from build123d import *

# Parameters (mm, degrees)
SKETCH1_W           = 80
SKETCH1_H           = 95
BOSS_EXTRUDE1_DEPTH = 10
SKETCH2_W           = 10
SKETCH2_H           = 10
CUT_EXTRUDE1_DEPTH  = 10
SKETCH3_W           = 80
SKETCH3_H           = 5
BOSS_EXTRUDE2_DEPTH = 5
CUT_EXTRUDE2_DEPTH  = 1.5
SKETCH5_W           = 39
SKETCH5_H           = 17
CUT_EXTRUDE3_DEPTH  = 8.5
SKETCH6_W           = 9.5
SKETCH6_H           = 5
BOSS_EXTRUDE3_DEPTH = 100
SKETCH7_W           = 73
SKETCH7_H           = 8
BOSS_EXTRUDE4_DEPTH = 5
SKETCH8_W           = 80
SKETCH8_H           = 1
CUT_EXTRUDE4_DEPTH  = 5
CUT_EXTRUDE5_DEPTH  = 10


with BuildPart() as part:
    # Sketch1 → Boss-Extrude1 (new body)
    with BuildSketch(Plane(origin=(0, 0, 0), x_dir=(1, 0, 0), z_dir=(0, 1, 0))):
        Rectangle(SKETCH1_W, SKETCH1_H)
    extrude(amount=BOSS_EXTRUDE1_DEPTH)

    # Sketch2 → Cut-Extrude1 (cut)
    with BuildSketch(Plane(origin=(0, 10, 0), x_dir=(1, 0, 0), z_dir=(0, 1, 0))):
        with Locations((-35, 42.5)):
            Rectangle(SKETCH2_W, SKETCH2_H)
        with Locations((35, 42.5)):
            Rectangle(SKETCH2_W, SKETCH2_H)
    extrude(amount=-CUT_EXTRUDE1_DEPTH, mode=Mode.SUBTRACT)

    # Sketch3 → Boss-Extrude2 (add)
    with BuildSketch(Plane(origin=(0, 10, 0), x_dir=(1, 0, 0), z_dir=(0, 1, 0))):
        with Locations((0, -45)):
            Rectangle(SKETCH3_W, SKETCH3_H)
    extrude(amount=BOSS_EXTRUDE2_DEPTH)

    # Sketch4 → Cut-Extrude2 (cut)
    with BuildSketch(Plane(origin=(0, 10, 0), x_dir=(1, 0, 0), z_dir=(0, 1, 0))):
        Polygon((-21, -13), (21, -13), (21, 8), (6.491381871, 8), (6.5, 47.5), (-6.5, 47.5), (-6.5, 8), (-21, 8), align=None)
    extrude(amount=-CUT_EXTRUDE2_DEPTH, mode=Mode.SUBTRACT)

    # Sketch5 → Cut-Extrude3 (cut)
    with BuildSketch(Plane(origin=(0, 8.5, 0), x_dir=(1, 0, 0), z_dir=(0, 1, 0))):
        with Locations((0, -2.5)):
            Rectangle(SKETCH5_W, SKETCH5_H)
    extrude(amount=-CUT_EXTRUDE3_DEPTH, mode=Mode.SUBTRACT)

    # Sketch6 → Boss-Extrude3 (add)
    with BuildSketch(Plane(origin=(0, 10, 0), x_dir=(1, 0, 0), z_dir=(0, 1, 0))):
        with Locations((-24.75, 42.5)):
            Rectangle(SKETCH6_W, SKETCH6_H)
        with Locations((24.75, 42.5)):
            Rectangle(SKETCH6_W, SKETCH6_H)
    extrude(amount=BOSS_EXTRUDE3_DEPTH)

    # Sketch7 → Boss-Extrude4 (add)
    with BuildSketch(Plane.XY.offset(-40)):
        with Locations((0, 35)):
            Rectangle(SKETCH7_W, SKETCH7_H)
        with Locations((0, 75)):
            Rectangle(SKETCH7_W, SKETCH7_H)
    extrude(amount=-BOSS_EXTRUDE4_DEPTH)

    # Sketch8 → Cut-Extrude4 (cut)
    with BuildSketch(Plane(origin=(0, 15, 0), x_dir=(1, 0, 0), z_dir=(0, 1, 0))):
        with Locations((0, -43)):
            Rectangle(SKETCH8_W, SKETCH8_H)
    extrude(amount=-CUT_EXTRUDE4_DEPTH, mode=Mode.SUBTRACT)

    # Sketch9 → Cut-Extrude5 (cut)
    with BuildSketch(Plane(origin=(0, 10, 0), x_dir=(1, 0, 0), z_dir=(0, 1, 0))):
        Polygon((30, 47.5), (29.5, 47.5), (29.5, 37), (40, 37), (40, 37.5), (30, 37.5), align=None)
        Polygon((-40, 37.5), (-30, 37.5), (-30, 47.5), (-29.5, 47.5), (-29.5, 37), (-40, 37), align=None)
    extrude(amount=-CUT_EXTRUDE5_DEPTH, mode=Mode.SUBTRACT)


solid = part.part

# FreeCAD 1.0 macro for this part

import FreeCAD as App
import Part
import Sketcher

V = App.Vector
Q = App.Units.Quantity

doc = App.newDocument("Part")
body = doc.addObject("PartDesign::Body", "Body")

# Sketch on XZ plane
sketch1 = body.newObject("Sketcher::SketchObject", "Sketch")
sketch1.AttachmentSupport = (doc.getObject("XZ_Plane"), [""])
sketch1.MapMode = "FlatFace"
sketch1.addGeometry(Part.LineSegment(V(-40, -47.5, 0), V(-40, 47.5, 0)), False)
sketch1.addGeometry(Part.LineSegment(V(-40, 47.5, 0), V(40, 47.5, 0)), False)
sketch1.addGeometry(Part.LineSegment(V(40, 47.5, 0), V(40, -47.5, 0)), False)
sketch1.addGeometry(Part.LineSegment(V(40, -47.5, 0), V(-40, -47.5, 0)), False)
sketch1.addConstraint(Sketcher.Constraint("Coincident", 0, 2, 1, 1))
sketch1.addConstraint(Sketcher.Constraint("Coincident", 1, 2, 2, 1))
sketch1.addConstraint(Sketcher.Constraint("Coincident", 2, 2, 3, 1))
sketch1.addConstraint(Sketcher.Constraint("Coincident", 3, 2, 0, 1))
sketch1.addConstraint(Sketcher.Constraint("Vertical", 0))
sketch1.addConstraint(Sketcher.Constraint("Horizontal", 1))
sketch1.addConstraint(Sketcher.Constraint("Vertical", 2))
sketch1.addConstraint(Sketcher.Constraint("Horizontal", 3))
sketch1.addConstraint(Sketcher.Constraint("Symmetric", 0, 2, 2, 2, -1, 1))
sketch1.addConstraint(Sketcher.Constraint("DistanceX", 1, 1, 1, 2, Q("80 mm")))
sketch1.addConstraint(Sketcher.Constraint("DistanceY", 0, 1, 0, 2, Q("95 mm")))
pad1 = body.newObject("PartDesign::Pad", "Pad")
pad1.Profile = sketch1
pad1.Length = 10
pad1.Reversed = True

# Sketch on XZ plane
sketch2 = body.newObject("Sketcher::SketchObject", "Sketch001")
sketch2.AttachmentSupport = (doc.getObject("XZ_Plane"), [""])
sketch2.MapMode = "FlatFace"
sketch2.AttachmentOffset = App.Placement(V(0, 0, -10), App.Rotation())
sketch2.addGeometry(Part.LineSegment(V(-40, -47.5, 0), V(-40, -37.5, 0)), False)
sketch2.addGeometry(Part.LineSegment(V(-40, -37.5, 0), V(-30, -37.5, 0)), False)
sketch2.addGeometry(Part.LineSegment(V(-30, -37.5, 0), V(-30, -47.5, 0)), False)
sketch2.addGeometry(Part.LineSegment(V(-30, -47.5, 0), V(-40, -47.5, 0)), False)
sketch2.addGeometry(Part.LineSegment(V(30, -47.5, 0), V(30, -37.5, 0)), False)
sketch2.addGeometry(Part.LineSegment(V(30, -37.5, 0), V(40, -37.5, 0)), False)
sketch2.addGeometry(Part.LineSegment(V(40, -37.5, 0), V(40, -47.5, 0)), False)
sketch2.addGeometry(Part.LineSegment(V(40, -47.5, 0), V(30, -47.5, 0)), False)
sketch2.addConstraint(Sketcher.Constraint("Coincident", 0, 2, 1, 1))
sketch2.addConstraint(Sketcher.Constraint("Coincident", 1, 2, 2, 1))
sketch2.addConstraint(Sketcher.Constraint("Coincident", 2, 2, 3, 1))
sketch2.addConstraint(Sketcher.Constraint("Coincident", 3, 2, 0, 1))
sketch2.addConstraint(Sketcher.Constraint("Coincident", 4, 2, 5, 1))
sketch2.addConstraint(Sketcher.Constraint("Coincident", 5, 2, 6, 1))
sketch2.addConstraint(Sketcher.Constraint("Coincident", 6, 2, 7, 1))
sketch2.addConstraint(Sketcher.Constraint("Coincident", 7, 2, 4, 1))
sketch2.addConstraint(Sketcher.Constraint("Vertical", 0))
sketch2.addConstraint(Sketcher.Constraint("Horizontal", 1))
sketch2.addConstraint(Sketcher.Constraint("Vertical", 2))
sketch2.addConstraint(Sketcher.Constraint("Horizontal", 3))
sketch2.addConstraint(Sketcher.Constraint("Vertical", 4))
sketch2.addConstraint(Sketcher.Constraint("Horizontal", 5))
sketch2.addConstraint(Sketcher.Constraint("Vertical", 6))
sketch2.addConstraint(Sketcher.Constraint("Horizontal", 7))
sketch2.addConstraint(Sketcher.Constraint("Symmetric", 1, 2, 4, 2, -2))
sketch2.addConstraint(Sketcher.Constraint("Symmetric", 3, 2, 6, 2, -2))
sketch2.addConstraint(Sketcher.Constraint("Equal", 7, 0))
sketch2.addConstraint(Sketcher.Constraint("DistanceX", 1, 1, 1, 2, Q("10 mm")))
sketch2.addConstraint(Sketcher.Constraint("DistanceX", 0, 2, -1, 1, Q("40 mm")))
sketch2.addConstraint(Sketcher.Constraint("DistanceY", 0, 2, -1, 1, Q("37.5 mm")))
pocket1 = body.newObject("PartDesign::Pocket", "Pocket")
pocket1.Profile = sketch2
pocket1.Length = 10
pocket1.Reversed = True

# Sketch on XZ plane
sketch3 = body.newObject("Sketcher::SketchObject", "Sketch002")
sketch3.AttachmentSupport = (doc.getObject("XZ_Plane"), [""])
sketch3.MapMode = "FlatFace"
sketch3.AttachmentOffset = App.Placement(V(0, 0, -10), App.Rotation())
sketch3.addGeometry(Part.LineSegment(V(-40, 42.5, 0), V(-40, 47.5, 0)), False)
sketch3.addGeometry(Part.LineSegment(V(-40, 47.5, 0), V(40, 47.5, 0)), False)
sketch3.addGeometry(Part.LineSegment(V(40, 47.5, 0), V(40, 42.5, 0)), False)
sketch3.addGeometry(Part.LineSegment(V(40, 42.5, 0), V(-40, 42.5, 0)), False)
sketch3.addConstraint(Sketcher.Constraint("Coincident", 0, 2, 1, 1))
sketch3.addConstraint(Sketcher.Constraint("Coincident", 1, 2, 2, 1))
sketch3.addConstraint(Sketcher.Constraint("Coincident", 2, 2, 3, 1))
sketch3.addConstraint(Sketcher.Constraint("Coincident", 3, 2, 0, 1))
sketch3.addConstraint(Sketcher.Constraint("Vertical", 0))
sketch3.addConstraint(Sketcher.Constraint("Horizontal", 1))
sketch3.addConstraint(Sketcher.Constraint("Vertical", 2))
sketch3.addConstraint(Sketcher.Constraint("Horizontal", 3))
sketch3.addConstraint(Sketcher.Constraint("DistanceX", 1, 1, 1, 2, Q("80 mm")))
sketch3.addConstraint(Sketcher.Constraint("DistanceY", 0, 1, 0, 2, Q("5 mm")))
sketch3.addConstraint(Sketcher.Constraint("DistanceX", 0, 2, -1, 1, Q("40 mm")))
sketch3.addConstraint(Sketcher.Constraint("DistanceY", -1, 1, 0, 2, Q("47.5 mm")))
pad2 = body.newObject("PartDesign::Pad", "Pad001")
pad2.Profile = sketch3
pad2.Length = 5
pad2.Reversed = True

# Sketch on XZ plane
sketch4 = body.newObject("Sketcher::SketchObject", "Sketch003")
sketch4.AttachmentSupport = (doc.getObject("XZ_Plane"), [""])
sketch4.MapMode = "FlatFace"
sketch4.AttachmentOffset = App.Placement(V(0, 0, -10), App.Rotation())
sketch4.addGeometry(Part.LineSegment(V(-21, 13, 0), V(21, 13, 0)), False)
sketch4.addGeometry(Part.LineSegment(V(21, 13, 0), V(21, -8, 0)), False)
sketch4.addGeometry(Part.LineSegment(V(21, -8, 0), V(6.491382, -8, 0)), False)
sketch4.addGeometry(Part.LineSegment(V(6.491382, -8, 0), V(6.5, -47.5, 0)), False)
sketch4.addGeometry(Part.LineSegment(V(6.5, -47.5, 0), V(-6.5, -47.5, 0)), False)
sketch4.addGeometry(Part.LineSegment(V(-6.5, -47.5, 0), V(-6.5, -8, 0)), False)
sketch4.addGeometry(Part.LineSegment(V(-6.5, -8, 0), V(-21, -8, 0)), False)
sketch4.addGeometry(Part.LineSegment(V(-21, -8, 0), V(-21, 13, 0)), False)
sketch4.addConstraint(Sketcher.Constraint("Coincident", 0, 2, 1, 1))
sketch4.addConstraint(Sketcher.Constraint("Coincident", 1, 2, 2, 1))
sketch4.addConstraint(Sketcher.Constraint("Coincident", 2, 2, 3, 1))
sketch4.addConstraint(Sketcher.Constraint("Coincident", 3, 2, 4, 1))
sketch4.addConstraint(Sketcher.Constraint("Coincident", 4, 2, 5, 1))
sketch4.addConstraint(Sketcher.Constraint("Coincident", 5, 2, 6, 1))
sketch4.addConstraint(Sketcher.Constraint("Coincident", 6, 2, 7, 1))
sketch4.addConstraint(Sketcher.Constraint("Coincident", 7, 2, 0, 1))
sketch4.addConstraint(Sketcher.Constraint("Horizontal", 0))
sketch4.addConstraint(Sketcher.Constraint("Vertical", 1))
sketch4.addConstraint(Sketcher.Constraint("Horizontal", 2))
sketch4.addConstraint(Sketcher.Constraint("Horizontal", 4))
sketch4.addConstraint(Sketcher.Constraint("Vertical", 5))
sketch4.addConstraint(Sketcher.Constraint("Horizontal", 6))
sketch4.addConstraint(Sketcher.Constraint("Vertical", 7))
sketch4.addConstraint(Sketcher.Constraint("Symmetric", 1, 2, 6, 2, -2))
sketch4.addConstraint(Sketcher.Constraint("DistanceX", 0, 1, 0, 2, Q("42 mm")))
sketch4.addConstraint(Sketcher.Constraint("DistanceX", 4, 2, 4, 1, Q("13 mm")))
sketch4.addConstraint(Sketcher.Constraint("DistanceY", 1, 2, 1, 1, Q("21 mm")))
sketch4.addConstraint(Sketcher.Constraint("DistanceX", 6, 2, 6, 1, Q("14.5 mm")))
sketch4.addConstraint(Sketcher.Constraint("DistanceY", 5, 1, 5, 2, Q("39.5 mm")))
sketch4.addConstraint(Sketcher.Constraint("DistanceY", -1, 1, 0, 2, Q("13 mm")))
sketch4.addConstraint(Sketcher.Constraint("DistanceX", 2, 2, 2, 1, Q("14.508618 mm")))
pocket2 = body.newObject("PartDesign::Pocket", "Pocket001")
pocket2.Profile = sketch4
pocket2.Length = 1.5
pocket2.Reversed = True

# Sketch on XZ plane
sketch5 = body.newObject("Sketcher::SketchObject", "Sketch004")
sketch5.AttachmentSupport = (doc.getObject("XZ_Plane"), [""])
sketch5.MapMode = "FlatFace"
sketch5.AttachmentOffset = App.Placement(V(0, 0, -8.5), App.Rotation())
sketch5.addGeometry(Part.LineSegment(V(-19.5, -6, 0), V(-19.5, 11, 0)), False)
sketch5.addGeometry(Part.LineSegment(V(-19.5, 11, 0), V(19.5, 11, 0)), False)
sketch5.addGeometry(Part.LineSegment(V(19.5, 11, 0), V(19.5, -6, 0)), False)
sketch5.addGeometry(Part.LineSegment(V(19.5, -6, 0), V(-19.5, -6, 0)), False)
sketch5.addConstraint(Sketcher.Constraint("Coincident", 0, 2, 1, 1))
sketch5.addConstraint(Sketcher.Constraint("Coincident", 1, 2, 2, 1))
sketch5.addConstraint(Sketcher.Constraint("Coincident", 2, 2, 3, 1))
sketch5.addConstraint(Sketcher.Constraint("Coincident", 3, 2, 0, 1))
sketch5.addConstraint(Sketcher.Constraint("Vertical", 0))
sketch5.addConstraint(Sketcher.Constraint("Horizontal", 1))
sketch5.addConstraint(Sketcher.Constraint("Vertical", 2))
sketch5.addConstraint(Sketcher.Constraint("Horizontal", 3))
sketch5.addConstraint(Sketcher.Constraint("DistanceX", 1, 1, 1, 2, Q("39 mm")))
sketch5.addConstraint(Sketcher.Constraint("DistanceY", 0, 1, 0, 2, Q("17 mm")))
sketch5.addConstraint(Sketcher.Constraint("DistanceY", -1, 1, 0, 2, Q("11 mm")))
sketch5.addConstraint(Sketcher.Constraint("DistanceX", 0, 2, -1, 1, Q("19.5 mm")))
pocket3 = body.newObject("PartDesign::Pocket", "Pocket002")
pocket3.Profile = sketch5
pocket3.Length = 8.5
pocket3.Reversed = True

# Sketch on XZ plane
sketch6 = body.newObject("Sketcher::SketchObject", "Sketch005")
sketch6.AttachmentSupport = (doc.getObject("XZ_Plane"), [""])
sketch6.MapMode = "FlatFace"
sketch6.AttachmentOffset = App.Placement(V(0, 0, -10), App.Rotation())
sketch6.addGeometry(Part.LineSegment(V(-29.5, -45, 0), V(-29.5, -40, 0)), False)
sketch6.addGeometry(Part.LineSegment(V(-29.5, -40, 0), V(-20, -40, 0)), False)
sketch6.addGeometry(Part.LineSegment(V(-20, -40, 0), V(-20, -45, 0)), False)
sketch6.addGeometry(Part.LineSegment(V(-20, -45, 0), V(-29.5, -45, 0)), False)
sketch6.addGeometry(Part.LineSegment(V(20, -45, 0), V(20, -40, 0)), False)
sketch6.addGeometry(Part.LineSegment(V(20, -40, 0), V(29.5, -40, 0)), False)
sketch6.addGeometry(Part.LineSegment(V(29.5, -40, 0), V(29.5, -45, 0)), False)
sketch6.addGeometry(Part.LineSegment(V(29.5, -45, 0), V(20, -45, 0)), False)
sketch6.addConstraint(Sketcher.Constraint("Coincident", 0, 2, 1, 1))
sketch6.addConstraint(Sketcher.Constraint("Coincident", 1, 2, 2, 1))
sketch6.addConstraint(Sketcher.Constraint("Coincident", 2, 2, 3, 1))
sketch6.addConstraint(Sketcher.Constraint("Coincident", 3, 2, 0, 1))
sketch6.addConstraint(Sketcher.Constraint("Coincident", 4, 2, 5, 1))
sketch6.addConstraint(Sketcher.Constraint("Coincident", 5, 2, 6, 1))
sketch6.addConstraint(Sketcher.Constraint("Coincident", 6, 2, 7, 1))
sketch6.addConstraint(Sketcher.Constraint("Coincident", 7, 2, 4, 1))
sketch6.addConstraint(Sketcher.Constraint("Vertical", 0))
sketch6.addConstraint(Sketcher.Constraint("Horizontal", 1))
sketch6.addConstraint(Sketcher.Constraint("Vertical", 2))
sketch6.addConstraint(Sketcher.Constraint("Horizontal", 3))
sketch6.addConstraint(Sketcher.Constraint("Vertical", 4))
sketch6.addConstraint(Sketcher.Constraint("Horizontal", 5))
sketch6.addConstraint(Sketcher.Constraint("Vertical", 6))
sketch6.addConstraint(Sketcher.Constraint("Horizontal", 7))
sketch6.addConstraint(Sketcher.Constraint("Symmetric", 1, 2, 4, 2, -2))
sketch6.addConstraint(Sketcher.Constraint("Symmetric", 3, 2, 6, 2, -2))
sketch6.addConstraint(Sketcher.Constraint("DistanceY", 0, 1, 0, 2, Q("5 mm")))
sketch6.addConstraint(Sketcher.Constraint("DistanceX", 1, 1, 1, 2, Q("9.5 mm")))
sketch6.addConstraint(Sketcher.Constraint("DistanceY", 0, 2, -1, 1, Q("40 mm")))
sketch6.addConstraint(Sketcher.Constraint("DistanceX", 1, 2, -1, 1, Q("20 mm")))
pad3 = body.newObject("PartDesign::Pad", "Pad002")
pad3.Profile = sketch6
pad3.Length = 100
pad3.Reversed = True

# Sketch on XY plane
sketch7 = body.newObject("Sketcher::SketchObject", "Sketch006")
sketch7.AttachmentSupport = (doc.getObject("XY_Plane"), [""])
sketch7.MapMode = "FlatFace"
sketch7.AttachmentOffset = App.Placement(V(0, 0, -40), App.Rotation())
sketch7.addGeometry(Part.LineSegment(V(-36.5, 39, 0), V(-36.5, 31, 0)), False)
sketch7.addGeometry(Part.LineSegment(V(-36.5, 31, 0), V(36.5, 31, 0)), False)
sketch7.addGeometry(Part.LineSegment(V(36.5, 31, 0), V(36.5, 39, 0)), False)
sketch7.addGeometry(Part.LineSegment(V(36.5, 39, 0), V(-36.5, 39, 0)), False)
sketch7.addGeometry(Part.LineSegment(V(-36.5, 79, 0), V(-36.5, 71, 0)), False)
sketch7.addGeometry(Part.LineSegment(V(-36.5, 71, 0), V(36.5, 71, 0)), False)
sketch7.addGeometry(Part.LineSegment(V(36.5, 71, 0), V(36.5, 79, 0)), False)
sketch7.addGeometry(Part.LineSegment(V(36.5, 79, 0), V(-36.5, 79, 0)), False)
sketch7.addConstraint(Sketcher.Constraint("Coincident", 0, 2, 1, 1))
sketch7.addConstraint(Sketcher.Constraint("Coincident", 1, 2, 2, 1))
sketch7.addConstraint(Sketcher.Constraint("Coincident", 2, 2, 3, 1))
sketch7.addConstraint(Sketcher.Constraint("Coincident", 3, 2, 0, 1))
sketch7.addConstraint(Sketcher.Constraint("Coincident", 4, 2, 5, 1))
sketch7.addConstraint(Sketcher.Constraint("Coincident", 5, 2, 6, 1))
sketch7.addConstraint(Sketcher.Constraint("Coincident", 6, 2, 7, 1))
sketch7.addConstraint(Sketcher.Constraint("Coincident", 7, 2, 4, 1))
sketch7.addConstraint(Sketcher.Constraint("Vertical", 0))
sketch7.addConstraint(Sketcher.Constraint("Horizontal", 1))
sketch7.addConstraint(Sketcher.Constraint("Vertical", 2))
sketch7.addConstraint(Sketcher.Constraint("Horizontal", 3))
sketch7.addConstraint(Sketcher.Constraint("Vertical", 4))
sketch7.addConstraint(Sketcher.Constraint("Horizontal", 5))
sketch7.addConstraint(Sketcher.Constraint("Vertical", 6))
sketch7.addConstraint(Sketcher.Constraint("Horizontal", 7))
sketch7.addConstraint(Sketcher.Constraint("Vertical", 3, 2, 4, 2))
sketch7.addConstraint(Sketcher.Constraint("Vertical", 2, 2, 5, 2))
sketch7.addConstraint(Sketcher.Constraint("Equal", 2, 4))
sketch7.addConstraint(Sketcher.Constraint("DistanceX", 1, 1, 1, 2, Q("73 mm")))
sketch7.addConstraint(Sketcher.Constraint("DistanceY", 0, 2, 0, 1, Q("8 mm")))
sketch7.addConstraint(Sketcher.Constraint("DistanceY", -1, 1, 0, 2, Q("31 mm")))
sketch7.addConstraint(Sketcher.Constraint("DistanceY", -1, 1, 4, 2, Q("71 mm")))
sketch7.addConstraint(Sketcher.Constraint("DistanceX", 0, 2, -1, 1, Q("36.5 mm")))
pad4 = body.newObject("PartDesign::Pad", "Pad003")
pad4.Profile = sketch7
pad4.Length = 5
pad4.Reversed = True

# Sketch on XZ plane
sketch8 = body.newObject("Sketcher::SketchObject", "Sketch007")
sketch8.AttachmentSupport = (doc.getObject("XZ_Plane"), [""])
sketch8.MapMode = "FlatFace"
sketch8.AttachmentOffset = App.Placement(V(0, 0, -15), App.Rotation())
sketch8.addGeometry(Part.LineSegment(V(-40, 42.5, 0), V(-40, 43.5, 0)), False)
sketch8.addGeometry(Part.LineSegment(V(-40, 43.5, 0), V(40, 43.5, 0)), False)
sketch8.addGeometry(Part.LineSegment(V(40, 43.5, 0), V(40, 42.5, 0)), False)
sketch8.addGeometry(Part.LineSegment(V(40, 42.5, 0), V(-40, 42.5, 0)), False)
sketch8.addConstraint(Sketcher.Constraint("Coincident", 0, 2, 1, 1))
sketch8.addConstraint(Sketcher.Constraint("Coincident", 1, 2, 2, 1))
sketch8.addConstraint(Sketcher.Constraint("Coincident", 2, 2, 3, 1))
sketch8.addConstraint(Sketcher.Constraint("Coincident", 3, 2, 0, 1))
sketch8.addConstraint(Sketcher.Constraint("Vertical", 0))
sketch8.addConstraint(Sketcher.Constraint("Horizontal", 1))
sketch8.addConstraint(Sketcher.Constraint("Vertical", 2))
sketch8.addConstraint(Sketcher.Constraint("Horizontal", 3))
sketch8.addConstraint(Sketcher.Constraint("DistanceX", 1, 1, 1, 2, Q("80 mm")))
sketch8.addConstraint(Sketcher.Constraint("DistanceY", 0, 1, 0, 2, Q("1 mm")))
sketch8.addConstraint(Sketcher.Constraint("DistanceX", 0, 2, -1, 1, Q("40 mm")))
sketch8.addConstraint(Sketcher.Constraint("DistanceY", -1, 1, 0, 2, Q("43.5 mm")))
pocket4 = body.newObject("PartDesign::Pocket", "Pocket003")
pocket4.Profile = sketch8
pocket4.Length = 5
pocket4.Reversed = True

# Sketch on XZ plane
sketch9 = body.newObject("Sketcher::SketchObject", "Sketch008")
sketch9.AttachmentSupport = (doc.getObject("XZ_Plane"), [""])
sketch9.MapMode = "FlatFace"
sketch9.AttachmentOffset = App.Placement(V(0, 0, -10), App.Rotation())
sketch9.addGeometry(Part.LineSegment(V(30, -47.5, 0), V(29.5, -47.5, 0)), False)
sketch9.addGeometry(Part.LineSegment(V(29.5, -47.5, 0), V(29.5, -37, 0)), False)
sketch9.addGeometry(Part.LineSegment(V(29.5, -37, 0), V(40, -37, 0)), False)
sketch9.addGeometry(Part.LineSegment(V(40, -37, 0), V(40, -37.5, 0)), False)
sketch9.addGeometry(Part.LineSegment(V(40, -37.5, 0), V(30, -37.5, 0)), False)
sketch9.addGeometry(Part.LineSegment(V(30, -37.5, 0), V(30, -47.5, 0)), False)
sketch9.addGeometry(Part.LineSegment(V(-30, -37.5, 0), V(-40, -37.5, 0)), False)
sketch9.addGeometry(Part.LineSegment(V(-40, -37.5, 0), V(-40, -37, 0)), False)
sketch9.addGeometry(Part.LineSegment(V(-40, -37, 0), V(-29.5, -37, 0)), False)
sketch9.addGeometry(Part.LineSegment(V(-29.5, -37, 0), V(-29.5, -47.5, 0)), False)
sketch9.addGeometry(Part.LineSegment(V(-29.5, -47.5, 0), V(-30, -47.5, 0)), False)
sketch9.addGeometry(Part.LineSegment(V(-30, -47.5, 0), V(-30, -37.5, 0)), False)
sketch9.addConstraint(Sketcher.Constraint("Coincident", 0, 2, 1, 1))
sketch9.addConstraint(Sketcher.Constraint("Coincident", 1, 2, 2, 1))
sketch9.addConstraint(Sketcher.Constraint("Coincident", 2, 2, 3, 1))
sketch9.addConstraint(Sketcher.Constraint("Coincident", 3, 2, 4, 1))
sketch9.addConstraint(Sketcher.Constraint("Coincident", 4, 2, 5, 1))
sketch9.addConstraint(Sketcher.Constraint("Coincident", 5, 2, 0, 1))
sketch9.addConstraint(Sketcher.Constraint("Coincident", 6, 2, 7, 1))
sketch9.addConstraint(Sketcher.Constraint("Coincident", 7, 2, 8, 1))
sketch9.addConstraint(Sketcher.Constraint("Coincident", 8, 2, 9, 1))
sketch9.addConstraint(Sketcher.Constraint("Coincident", 9, 2, 10, 1))
sketch9.addConstraint(Sketcher.Constraint("Coincident", 10, 2, 11, 1))
sketch9.addConstraint(Sketcher.Constraint("Coincident", 11, 2, 6, 1))
sketch9.addConstraint(Sketcher.Constraint("Horizontal", 0))
sketch9.addConstraint(Sketcher.Constraint("Vertical", 1))
sketch9.addConstraint(Sketcher.Constraint("Horizontal", 2))
sketch9.addConstraint(Sketcher.Constraint("Vertical", 3))
sketch9.addConstraint(Sketcher.Constraint("Horizontal", 4))
sketch9.addConstraint(Sketcher.Constraint("Vertical", 5))
sketch9.addConstraint(Sketcher.Constraint("Horizontal", 6))
sketch9.addConstraint(Sketcher.Constraint("Vertical", 7))
sketch9.addConstraint(Sketcher.Constraint("Horizontal", 8))
sketch9.addConstraint(Sketcher.Constraint("Vertical", 9))
sketch9.addConstraint(Sketcher.Constraint("Horizontal", 10))
sketch9.addConstraint(Sketcher.Constraint("Vertical", 11))
sketch9.addConstraint(Sketcher.Constraint("Symmetric", 3, 2, 6, 2, -2))
sketch9.addConstraint(Sketcher.Constraint("Symmetric", 1, 2, 8, 2, -2))
sketch9.addConstraint(Sketcher.Constraint("Symmetric", 5, 2, 10, 2, -2))
sketch9.addConstraint(Sketcher.Constraint("Equal", 8, 1))
sketch9.addConstraint(Sketcher.Constraint("Equal", 10, 3))
sketch9.addConstraint(Sketcher.Constraint("DistanceX", 4, 2, 4, 1, Q("10 mm")))
sketch9.addConstraint(Sketcher.Constraint("DistanceX", 0, 2, 0, 1, Q("0.5 mm")))
sketch9.addConstraint(Sketcher.Constraint("DistanceY", 1, 2, -1, 1, Q("37 mm")))
sketch9.addConstraint(Sketcher.Constraint("DistanceX", -1, 1, 2, 2, Q("40 mm")))
pocket5 = body.newObject("PartDesign::Pocket", "Pocket004")
pocket5.Profile = sketch9
pocket5.Length = 10
pocket5.Reversed = True

doc.recompute()
